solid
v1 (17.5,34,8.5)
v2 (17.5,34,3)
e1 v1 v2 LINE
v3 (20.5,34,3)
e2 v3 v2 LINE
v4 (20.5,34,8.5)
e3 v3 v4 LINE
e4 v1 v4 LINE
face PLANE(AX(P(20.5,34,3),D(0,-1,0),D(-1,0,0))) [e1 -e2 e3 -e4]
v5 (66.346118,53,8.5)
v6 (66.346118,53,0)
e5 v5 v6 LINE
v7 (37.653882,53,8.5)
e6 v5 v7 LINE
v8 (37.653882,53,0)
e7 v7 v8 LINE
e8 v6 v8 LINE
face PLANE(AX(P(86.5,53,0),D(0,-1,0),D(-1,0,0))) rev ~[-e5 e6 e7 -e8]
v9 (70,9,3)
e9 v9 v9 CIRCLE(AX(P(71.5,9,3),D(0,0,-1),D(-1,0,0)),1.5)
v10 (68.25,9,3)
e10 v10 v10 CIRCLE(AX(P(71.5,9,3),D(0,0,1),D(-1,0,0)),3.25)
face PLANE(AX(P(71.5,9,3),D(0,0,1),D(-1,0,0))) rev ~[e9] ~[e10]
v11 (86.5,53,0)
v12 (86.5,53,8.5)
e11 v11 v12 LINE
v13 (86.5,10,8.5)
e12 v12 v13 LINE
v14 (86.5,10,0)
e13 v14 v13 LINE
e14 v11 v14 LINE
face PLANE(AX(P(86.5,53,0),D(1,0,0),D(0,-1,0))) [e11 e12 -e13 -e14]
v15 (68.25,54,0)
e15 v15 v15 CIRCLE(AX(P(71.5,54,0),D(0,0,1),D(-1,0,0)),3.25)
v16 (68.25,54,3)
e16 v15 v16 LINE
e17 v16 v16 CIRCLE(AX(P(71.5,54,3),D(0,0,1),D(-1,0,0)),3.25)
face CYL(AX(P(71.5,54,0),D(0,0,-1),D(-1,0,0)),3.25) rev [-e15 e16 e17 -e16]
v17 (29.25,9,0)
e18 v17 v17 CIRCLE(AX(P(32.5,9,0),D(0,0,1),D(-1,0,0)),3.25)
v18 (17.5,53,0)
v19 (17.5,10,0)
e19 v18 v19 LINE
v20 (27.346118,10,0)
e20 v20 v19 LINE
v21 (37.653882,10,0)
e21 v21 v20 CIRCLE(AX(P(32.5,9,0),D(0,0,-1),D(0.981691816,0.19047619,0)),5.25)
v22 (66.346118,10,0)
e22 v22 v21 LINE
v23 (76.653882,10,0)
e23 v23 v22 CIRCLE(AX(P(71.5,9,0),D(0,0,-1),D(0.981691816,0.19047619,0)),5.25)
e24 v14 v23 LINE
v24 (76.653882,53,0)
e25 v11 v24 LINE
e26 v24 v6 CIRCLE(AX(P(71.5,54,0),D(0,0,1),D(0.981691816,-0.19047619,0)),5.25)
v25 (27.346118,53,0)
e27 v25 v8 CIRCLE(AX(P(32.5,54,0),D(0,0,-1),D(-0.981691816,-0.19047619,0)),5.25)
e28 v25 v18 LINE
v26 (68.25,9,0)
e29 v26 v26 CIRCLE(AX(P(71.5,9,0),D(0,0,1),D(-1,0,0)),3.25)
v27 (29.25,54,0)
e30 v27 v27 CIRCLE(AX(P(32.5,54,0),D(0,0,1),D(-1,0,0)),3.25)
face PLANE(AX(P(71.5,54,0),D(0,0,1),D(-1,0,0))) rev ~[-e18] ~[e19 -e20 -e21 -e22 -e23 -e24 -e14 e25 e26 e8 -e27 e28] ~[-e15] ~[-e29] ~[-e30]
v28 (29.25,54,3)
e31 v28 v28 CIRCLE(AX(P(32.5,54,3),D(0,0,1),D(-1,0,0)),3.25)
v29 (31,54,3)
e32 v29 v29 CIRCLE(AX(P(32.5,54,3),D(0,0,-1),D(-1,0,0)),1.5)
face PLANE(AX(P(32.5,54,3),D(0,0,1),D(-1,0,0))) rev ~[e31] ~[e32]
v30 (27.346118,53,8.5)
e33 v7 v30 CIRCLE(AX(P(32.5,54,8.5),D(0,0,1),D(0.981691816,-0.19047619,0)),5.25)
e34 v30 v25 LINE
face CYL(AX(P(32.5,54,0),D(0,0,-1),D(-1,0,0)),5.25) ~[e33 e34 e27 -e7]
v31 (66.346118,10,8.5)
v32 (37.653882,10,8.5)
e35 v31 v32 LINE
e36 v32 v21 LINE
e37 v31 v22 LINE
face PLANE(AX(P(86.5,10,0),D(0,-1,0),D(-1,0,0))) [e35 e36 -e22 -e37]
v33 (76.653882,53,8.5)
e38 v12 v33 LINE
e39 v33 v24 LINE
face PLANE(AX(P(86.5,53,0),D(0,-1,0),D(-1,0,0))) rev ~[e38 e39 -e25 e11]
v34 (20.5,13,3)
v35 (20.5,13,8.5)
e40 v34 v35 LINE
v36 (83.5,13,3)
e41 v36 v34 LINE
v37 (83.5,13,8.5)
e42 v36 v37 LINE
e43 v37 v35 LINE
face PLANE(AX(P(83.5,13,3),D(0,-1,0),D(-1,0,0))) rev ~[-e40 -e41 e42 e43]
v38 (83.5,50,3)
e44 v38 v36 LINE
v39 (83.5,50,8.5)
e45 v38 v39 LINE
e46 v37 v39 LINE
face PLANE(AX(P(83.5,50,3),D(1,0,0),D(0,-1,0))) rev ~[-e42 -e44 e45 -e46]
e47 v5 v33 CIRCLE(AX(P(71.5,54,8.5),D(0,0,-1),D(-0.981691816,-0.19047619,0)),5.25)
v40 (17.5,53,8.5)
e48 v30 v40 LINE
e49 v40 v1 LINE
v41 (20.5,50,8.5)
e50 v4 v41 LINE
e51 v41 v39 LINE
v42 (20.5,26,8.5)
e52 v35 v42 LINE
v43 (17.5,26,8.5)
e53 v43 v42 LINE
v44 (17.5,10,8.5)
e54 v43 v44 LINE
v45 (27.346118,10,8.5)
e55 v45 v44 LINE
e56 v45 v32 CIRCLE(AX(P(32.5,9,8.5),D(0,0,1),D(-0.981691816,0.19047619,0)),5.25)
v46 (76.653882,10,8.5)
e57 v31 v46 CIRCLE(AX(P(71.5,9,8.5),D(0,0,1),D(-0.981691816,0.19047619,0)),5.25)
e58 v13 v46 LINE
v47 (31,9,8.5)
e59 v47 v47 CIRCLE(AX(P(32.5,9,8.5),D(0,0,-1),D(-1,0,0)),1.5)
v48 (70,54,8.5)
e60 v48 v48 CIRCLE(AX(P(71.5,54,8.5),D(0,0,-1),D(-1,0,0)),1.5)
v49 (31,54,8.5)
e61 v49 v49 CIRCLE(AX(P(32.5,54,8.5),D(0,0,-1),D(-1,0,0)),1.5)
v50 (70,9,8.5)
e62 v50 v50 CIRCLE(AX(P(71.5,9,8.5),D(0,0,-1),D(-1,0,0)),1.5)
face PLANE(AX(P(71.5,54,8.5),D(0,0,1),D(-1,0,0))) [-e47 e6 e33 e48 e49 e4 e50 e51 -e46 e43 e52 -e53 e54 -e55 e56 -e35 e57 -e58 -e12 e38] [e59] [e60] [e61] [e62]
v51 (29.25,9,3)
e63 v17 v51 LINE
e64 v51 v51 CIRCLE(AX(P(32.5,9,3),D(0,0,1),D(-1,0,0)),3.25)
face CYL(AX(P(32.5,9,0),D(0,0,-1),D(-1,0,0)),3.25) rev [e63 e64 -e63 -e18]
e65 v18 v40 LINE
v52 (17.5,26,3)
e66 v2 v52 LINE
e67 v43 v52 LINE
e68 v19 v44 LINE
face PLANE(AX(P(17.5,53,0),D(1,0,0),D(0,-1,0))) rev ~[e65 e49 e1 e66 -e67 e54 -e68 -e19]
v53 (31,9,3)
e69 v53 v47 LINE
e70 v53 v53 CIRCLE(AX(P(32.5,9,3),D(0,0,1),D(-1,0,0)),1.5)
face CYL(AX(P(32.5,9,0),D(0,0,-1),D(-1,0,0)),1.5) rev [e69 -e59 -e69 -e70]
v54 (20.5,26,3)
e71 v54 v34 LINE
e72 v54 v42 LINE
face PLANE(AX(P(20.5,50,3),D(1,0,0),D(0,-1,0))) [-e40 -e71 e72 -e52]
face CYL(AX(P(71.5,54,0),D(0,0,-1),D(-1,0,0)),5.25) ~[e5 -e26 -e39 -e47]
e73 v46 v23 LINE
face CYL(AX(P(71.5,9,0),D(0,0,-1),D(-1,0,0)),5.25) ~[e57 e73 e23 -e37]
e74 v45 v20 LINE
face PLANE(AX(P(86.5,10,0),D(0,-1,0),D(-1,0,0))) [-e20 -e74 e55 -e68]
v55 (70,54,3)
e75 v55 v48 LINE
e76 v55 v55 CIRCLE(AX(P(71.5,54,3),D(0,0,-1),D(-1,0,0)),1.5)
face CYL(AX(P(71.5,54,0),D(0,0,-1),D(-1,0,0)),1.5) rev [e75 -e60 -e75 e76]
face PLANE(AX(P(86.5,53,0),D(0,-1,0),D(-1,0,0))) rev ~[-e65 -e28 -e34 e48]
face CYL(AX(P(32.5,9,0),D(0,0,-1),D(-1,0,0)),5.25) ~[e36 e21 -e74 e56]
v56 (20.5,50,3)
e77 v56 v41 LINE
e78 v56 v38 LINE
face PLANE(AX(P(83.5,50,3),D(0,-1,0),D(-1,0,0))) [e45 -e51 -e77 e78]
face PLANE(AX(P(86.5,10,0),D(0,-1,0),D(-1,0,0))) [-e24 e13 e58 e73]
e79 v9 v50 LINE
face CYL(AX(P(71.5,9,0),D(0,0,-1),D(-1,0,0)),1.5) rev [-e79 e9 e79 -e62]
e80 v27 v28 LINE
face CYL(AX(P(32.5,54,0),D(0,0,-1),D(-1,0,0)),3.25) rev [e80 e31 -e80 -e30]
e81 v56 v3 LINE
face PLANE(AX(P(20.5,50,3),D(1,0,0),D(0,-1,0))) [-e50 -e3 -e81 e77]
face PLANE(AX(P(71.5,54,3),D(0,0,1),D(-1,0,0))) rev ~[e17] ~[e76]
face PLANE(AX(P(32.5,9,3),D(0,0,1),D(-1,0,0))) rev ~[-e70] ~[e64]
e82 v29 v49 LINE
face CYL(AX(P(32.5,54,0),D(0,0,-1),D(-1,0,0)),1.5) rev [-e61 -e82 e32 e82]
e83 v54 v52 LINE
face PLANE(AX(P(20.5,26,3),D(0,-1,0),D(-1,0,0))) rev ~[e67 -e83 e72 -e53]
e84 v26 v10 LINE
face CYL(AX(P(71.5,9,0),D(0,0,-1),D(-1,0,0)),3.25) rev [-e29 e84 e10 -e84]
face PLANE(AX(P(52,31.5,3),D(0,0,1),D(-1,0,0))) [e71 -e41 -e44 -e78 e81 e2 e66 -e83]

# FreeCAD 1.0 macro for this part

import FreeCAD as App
import Part
import Sketcher

V = App.Vector
Q = App.Units.Quantity

doc = App.newDocument("Part")
body = doc.addObject("PartDesign::Body", "Body")

sketch1 = doc.addObject("Sketcher::SketchObject", "Sketch")
body.addObject(sketch1)
sketch1.AttachmentSupport = (doc.XY_Plane, [""])
sketch1.MapMode = "FlatFace"
sketch1.addGeometry(Part.LineSegment(V(0, 37, 0), V(0, 0, 0)), False)
sketch1.addGeometry(Part.LineSegment(V(0, 0, 0), V(63, 0, 0)), False)
sketch1.addGeometry(Part.LineSegment(V(63, 0, 0), V(63, 37, 0)), False)
sketch1.addGeometry(Part.LineSegment(V(63, 37, 0), V(0, 37, 0)), False)
sketch1.addConstraint(Sketcher.Constraint("Coincident", 0, 2, 1, 1))
sketch1.addConstraint(Sketcher.Constraint("Coincident", 1, 2, 2, 1))
sketch1.addConstraint(Sketcher.Constraint("Coincident", 2, 2, 3, 1))
sketch1.addConstraint(Sketcher.Constraint("Coincident", 3, 2, 0, 1))
sketch1.addConstraint(Sketcher.Constraint("Vertical", 0))
sketch1.addConstraint(Sketcher.Constraint("Horizontal", 1))
sketch1.addConstraint(Sketcher.Constraint("Vertical", 2))
sketch1.addConstraint(Sketcher.Constraint("Horizontal", 3))
sketch1.addConstraint(Sketcher.Constraint("Coincident", 0, 2, -1, 1))
sketch1.addConstraint(Sketcher.Constraint("DistanceX", 1, 1, 1, 2, Q("63 mm")))
sketch1.addConstraint(Sketcher.Constraint("DistanceY", 0, 2, 0, 1, Q("37 mm")))
pad1 = doc.addObject("PartDesign::Pad", "Pad")
body.addObject(pad1)
pad1.Profile = sketch1
pad1.Length = 5.5
body2 = doc.addObject("PartDesign::Body", "Body001")

sketch2 = doc.addObject("Sketcher::SketchObject", "Sketch001")
body2.addObject(sketch2)
sketch2.AttachmentSupport = (doc.getObject("XY_Plane001"), [""])
sketch2.MapMode = "FlatFace"
sketch2.addGeometry(Part.LineSegment(V(63, 24, 0), V(63, 16, 0)), False)
sketch2.addGeometry(Part.LineSegment(V(63, 16, 0), V(73, 16, 0)), False)
sketch2.addGeometry(Part.LineSegment(V(73, 16, 0), V(73, 24, 0)), False)
sketch2.addGeometry(Part.LineSegment(V(73, 24, 0), V(63, 24, 0)), False)
sketch2.addConstraint(Sketcher.Constraint("Coincident", 0, 2, 1, 1))
sketch2.addConstraint(Sketcher.Constraint("Coincident", 1, 2, 2, 1))
sketch2.addConstraint(Sketcher.Constraint("Coincident", 2, 2, 3, 1))
sketch2.addConstraint(Sketcher.Constraint("Coincident", 3, 2, 0, 1))
sketch2.addConstraint(Sketcher.Constraint("Vertical", 0))
sketch2.addConstraint(Sketcher.Constraint("Horizontal", 1))
sketch2.addConstraint(Sketcher.Constraint("Vertical", 2))
sketch2.addConstraint(Sketcher.Constraint("Horizontal", 3))
sketch2.addConstraint(Sketcher.Constraint("DistanceX", 1, 1, 1, 2, Q("10 mm")))
sketch2.addConstraint(Sketcher.Constraint("DistanceY", 0, 2, 0, 1, Q("8 mm")))
sketch2.addConstraint(Sketcher.Constraint("DistanceX", -1, 1, 0, 2, Q("63 mm")))
sketch2.addConstraint(Sketcher.Constraint("DistanceY", -1, 1, 0, 2, Q("16 mm")))
pad2 = doc.addObject("PartDesign::Pad", "Pad001")
body2.addObject(pad2)
pad2.Profile = sketch2
pad2.Length = 5.5
doc.recompute()

boolean = doc.addObject("PartDesign::Boolean", "Boolean")
body2.addObject(boolean)
boolean.Type = "Fuse"
boolean.addObjects([body])
body3 = doc.addObject("PartDesign::Body", "Body002")
doc.recompute()

body2.Placement = App.Placement(V(3, 3, 3), App.Rotation(V(0, 0, 1), 0))
boolean2 = doc.addObject("PartDesign::Boolean", "Boolean001")
body3.addObject(boolean2)
boolean2.Type = "Fuse"
boolean2.addObjects([body2])
body4 = doc.addObject("PartDesign::Body", "Body003")

sketch3 = doc.addObject("Sketcher::SketchObject", "Sketch002")
body4.addObject(sketch3)
sketch3.AttachmentSupport = (doc.getObject("XY_Plane003"), [""])
sketch3.MapMode = "FlatFace"
sketch3.addGeometry(Part.Circle(V(15, -1, 0), V(0, 0, 1), 3.2), False)
sketch3.addConstraint(Sketcher.Constraint("Diameter", 0, Q("6.5 mm")))
sketch3.addConstraint(Sketcher.Constraint("DistanceX", -1, 1, 0, 3, Q("15 mm")))
sketch3.addConstraint(Sketcher.Constraint("DistanceY", 0, 3, -1, 1, Q("1 mm")))
pad3 = doc.addObject("PartDesign::Pad", "Pad002")
body4.addObject(pad3)
pad3.Profile = sketch3
pad3.Length = 3
body5 = doc.addObject("PartDesign::Body", "Body004")

sketch4 = doc.addObject("Sketcher::SketchObject", "Sketch003")
body5.addObject(sketch4)
sketch4.AttachmentSupport = (doc.getObject("XY_Plane004"), [""])
sketch4.MapMode = "FlatFace"
sketch4.addGeometry(Part.Circle(V(15, -1, 0), V(0, 0, 1), 1.5), False)
sketch4.addConstraint(Sketcher.Constraint("Diameter", 0, Q("3 mm")))
sketch4.addConstraint(Sketcher.Constraint("DistanceX", -1, 1, 0, 3, Q("15 mm")))
sketch4.addConstraint(Sketcher.Constraint("DistanceY", 0, 3, -1, 1, Q("1 mm")))
pad4 = doc.addObject("PartDesign::Pad", "Pad003")
body5.addObject(pad4)
pad4.Profile = sketch4
pad4.Length = 8.5
doc.recompute()

boolean3 = doc.addObject("PartDesign::Boolean", "Boolean002")
body5.addObject(boolean3)
boolean3.Type = "Fuse"
boolean3.addObjects([body4])
body6 = doc.addObject("PartDesign::Body", "Body005")

sketch5 = doc.addObject("Sketcher::SketchObject", "Sketch004")
body6.addObject(sketch5)
sketch5.AttachmentSupport = (doc.getObject("XY_Plane005"), [""])
sketch5.MapMode = "FlatFace"
sketch5.addGeometry(Part.Circle(V(15, -1, 0), V(0, 0, 1), 5), False)
sketch5.addConstraint(Sketcher.Constraint("Diameter", 0, Q("10.5 mm")))
sketch5.addConstraint(Sketcher.Constraint("DistanceX", -1, 1, 0, 3, Q("15 mm")))
sketch5.addConstraint(Sketcher.Constraint("DistanceY", 0, 3, -1, 1, Q("1 mm")))
pad5 = doc.addObject("PartDesign::Pad", "Pad004")
body6.addObject(pad5)
pad5.Profile = sketch5
pad5.Length = 8.5
doc.recompute()

boolean4 = doc.addObject("PartDesign::Boolean", "Boolean003")
body6.addObject(boolean4)
boolean4.Type = "Cut"
boolean4.addObjects([body5])
body7 = doc.addObject("PartDesign::Body", "Body006")
doc.recompute()

body6.Placement = App.Placement(V(39, 45, 0), App.Rotation(V(0, 0, 1), 0))
boolean5 = doc.addObject("PartDesign::Boolean", "Boolean004")
body7.addObject(boolean5)
boolean5.Type = "Fuse"
boolean5.addObjects([body6])
body8 = doc.addObject("PartDesign::Body", "Body007")

sketch6 = doc.addObject("Sketcher::SketchObject", "Sketch005")
body8.addObject(sketch6)
sketch6.AttachmentSupport = (doc.getObject("XY_Plane007"), [""])
sketch6.MapMode = "FlatFace"
sketch6.addGeometry(Part.Circle(V(15, -1, 0), V(0, 0, 1), 3.2), False)
sketch6.addConstraint(Sketcher.Constraint("Diameter", 0, Q("6.5 mm")))
sketch6.addConstraint(Sketcher.Constraint("DistanceX", -1, 1, 0, 3, Q("15 mm")))
sketch6.addConstraint(Sketcher.Constraint("DistanceY", 0, 3, -1, 1, Q("1 mm")))
pad6 = doc.addObject("PartDesign::Pad", "Pad005")
body8.addObject(pad6)
pad6.Profile = sketch6
pad6.Length = 3
body9 = doc.addObject("PartDesign::Body", "Body008")

sketch7 = doc.addObject("Sketcher::SketchObject", "Sketch006")
body9.addObject(sketch7)
sketch7.AttachmentSupport = (doc.getObject("XY_Plane008"), [""])
sketch7.MapMode = "FlatFace"
sketch7.addGeometry(Part.Circle(V(15, -1, 0), V(0, 0, 1), 1.5), False)
sketch7.addConstraint(Sketcher.Constraint("Diameter", 0, Q("3 mm")))
sketch7.addConstraint(Sketcher.Constraint("DistanceX", -1, 1, 0, 3, Q("15 mm")))
sketch7.addConstraint(Sketcher.Constraint("DistanceY", 0, 3, -1, 1, Q("1 mm")))
pad7 = doc.addObject("PartDesign::Pad", "Pad006")
body9.addObject(pad7)
pad7.Profile = sketch7
pad7.Length = 8.5
doc.recompute()

boolean6 = doc.addObject("PartDesign::Boolean", "Boolean005")
body9.addObject(boolean6)
boolean6.Type = "Fuse"
boolean6.addObjects([body8])
body10 = doc.addObject("PartDesign::Body", "Body009")

sketch8 = doc.addObject("Sketcher::SketchObject", "Sketch007")
body10.addObject(sketch8)
sketch8.AttachmentSupport = (doc.getObject("XY_Plane009"), [""])
sketch8.MapMode = "FlatFace"
sketch8.addGeometry(Part.Circle(V(15, -1, 0), V(0, 0, 1), 5), False)
sketch8.addConstraint(Sketcher.Constraint("Diameter", 0, Q("10.5 mm")))
sketch8.addConstraint(Sketcher.Constraint("DistanceX", -1, 1, 0, 3, Q("15 mm")))
sketch8.addConstraint(Sketcher.Constraint("DistanceY", 0, 3, -1, 1, Q("1 mm")))
pad8 = doc.addObject("PartDesign::Pad", "Pad007")
body10.addObject(pad8)
pad8.Profile = sketch8
pad8.Length = 8.5
doc.recompute()

boolean7 = doc.addObject("PartDesign::Boolean", "Boolean006")
body10.addObject(boolean7)
boolean7.Type = "Cut"
boolean7.addObjects([body9])
body11 = doc.addObject("PartDesign::Body", "Body010")
doc.recompute()

body10.Placement = App.Placement(V(39, 0, 0), App.Rotation(V(0, 0, 1), 0))
boolean8 = doc.addObject("PartDesign::Boolean", "Boolean007")
body11.addObject(boolean8)
boolean8.Type = "Fuse"
boolean8.addObjects([body10])
body12 = doc.addObject("PartDesign::Body", "Body011")

sketch9 = doc.addObject("Sketcher::SketchObject", "Sketch008")
body12.addObject(sketch9)
sketch9.AttachmentSupport = (doc.getObject("XY_Plane011"), [""])
sketch9.MapMode = "FlatFace"
sketch9.addGeometry(Part.Circle(V(15, -1, 0), V(0, 0, 1), 3.2), False)
sketch9.addConstraint(Sketcher.Constraint("Diameter", 0, Q("6.5 mm")))
sketch9.addConstraint(Sketcher.Constraint("DistanceX", -1, 1, 0, 3, Q("15 mm")))
sketch9.addConstraint(Sketcher.Constraint("DistanceY", 0, 3, -1, 1, Q("1 mm")))
pad9 = doc.addObject("PartDesign::Pad", "Pad008")
body12.addObject(pad9)
pad9.Profile = sketch9
pad9.Length = 3
body13 = doc.addObject("PartDesign::Body", "Body012")

sketch10 = doc.addObject("Sketcher::SketchObject", "Sketch009")
body13.addObject(sketch10)
sketch10.AttachmentSupport = (doc.getObject("XY_Plane012"), [""])
sketch10.MapMode = "FlatFace"
sketch10.addGeometry(Part.Circle(V(15, -1, 0), V(0, 0, 1), 1.5), False)
sketch10.addConstraint(Sketcher.Constraint("Diameter", 0, Q("3 mm")))
sketch10.addConstraint(Sketcher.Constraint("DistanceX", -1, 1, 0, 3, Q("15 mm")))
sketch10.addConstraint(Sketcher.Constraint("DistanceY", 0, 3, -1, 1, Q("1 mm")))
pad10 = doc.addObject("PartDesign::Pad", "Pad009")
body13.addObject(pad10)
pad10.Profile = sketch10
pad10.Length = 8.5
doc.recompute()

boolean9 = doc.addObject("PartDesign::Boolean", "Boolean008")
body13.addObject(boolean9)
boolean9.Type = "Fuse"
boolean9.addObjects([body12])
body14 = doc.addObject("PartDesign::Body", "Body013")

sketch11 = doc.addObject("Sketcher::SketchObject", "Sketch010")
body14.addObject(sketch11)
sketch11.AttachmentSupport = (doc.getObject("XY_Plane013"), [""])
sketch11.MapMode = "FlatFace"
sketch11.addGeometry(Part.Circle(V(15, -1, 0), V(0, 0, 1), 5), False)
sketch11.addConstraint(Sketcher.Constraint("Diameter", 0, Q("10.5 mm")))
sketch11.addConstraint(Sketcher.Constraint("DistanceX", -1, 1, 0, 3, Q("15 mm")))
sketch11.addConstraint(Sketcher.Constraint("DistanceY", 0, 3, -1, 1, Q("1 mm")))
pad11 = doc.addObject("PartDesign::Pad", "Pad010")
body14.addObject(pad11)
pad11.Profile = sketch11
pad11.Length = 8.5
doc.recompute()

boolean10 = doc.addObject("PartDesign::Boolean", "Boolean009")
body14.addObject(boolean10)
boolean10.Type = "Cut"
boolean10.addObjects([body13])
body15 = doc.addObject("PartDesign::Body", "Body014")

sketch12 = doc.addObject("Sketcher::SketchObject", "Sketch011")
body15.addObject(sketch12)
sketch12.AttachmentSupport = (doc.getObject("XY_Plane014"), [""])
sketch12.MapMode = "FlatFace"
sketch12.addGeometry(Part.Circle(V(15, -1, 0), V(0, 0, 1), 3.2), False)
sketch12.addConstraint(Sketcher.Constraint("Diameter", 0, Q("6.5 mm")))
sketch12.addConstraint(Sketcher.Constraint("DistanceX", -1, 1, 0, 3, Q("15 mm")))
sketch12.addConstraint(Sketcher.Constraint("DistanceY", 0, 3, -1, 1, Q("1 mm")))
pad12 = doc.addObject("PartDesign::Pad", "Pad011")
body15.addObject(pad12)
pad12.Profile = sketch12
pad12.Length = 3
body16 = doc.addObject("PartDesign::Body", "Body015")

sketch13 = doc.addObject("Sketcher::SketchObject", "Sketch012")
body16.addObject(sketch13)
sketch13.AttachmentSupport = (doc.getObject("XY_Plane015"), [""])
sketch13.MapMode = "FlatFace"
sketch13.addGeometry(Part.Circle(V(15, -1, 0), V(0, 0, 1), 1.5), False)
sketch13.addConstraint(Sketcher.Constraint("Diameter", 0, Q("3 mm")))
sketch13.addConstraint(Sketcher.Constraint("DistanceX", -1, 1, 0, 3, Q("15 mm")))
sketch13.addConstraint(Sketcher.Constraint("DistanceY", 0, 3, -1, 1, Q("1 mm")))
pad13 = doc.addObject("PartDesign::Pad", "Pad012")
body16.addObject(pad13)
pad13.Profile = sketch13
pad13.Length = 8.5
doc.recompute()

boolean11 = doc.addObject("PartDesign::Boolean", "Boolean010")
body16.addObject(boolean11)
boolean11.Type = "Fuse"
boolean11.addObjects([body15])
body17 = doc.addObject("PartDesign::Body", "Body016")

sketch14 = doc.addObject("Sketcher::SketchObject", "Sketch013")
body17.addObject(sketch14)
sketch14.AttachmentSupport = (doc.getObject("XY_Plane016"), [""])
sketch14.MapMode = "FlatFace"
sketch14.addGeometry(Part.Circle(V(15, -1, 0), V(0, 0, 1), 5), False)
sketch14.addConstraint(Sketcher.Constraint("Diameter", 0, Q("10.5 mm")))
sketch14.addConstraint(Sketcher.Constraint("DistanceX", -1, 1, 0, 3, Q("15 mm")))
sketch14.addConstraint(Sketcher.Constraint("DistanceY", 0, 3, -1, 1, Q("1 mm")))
pad14 = doc.addObject("PartDesign::Pad", "Pad013")
body17.addObject(pad14)
pad14.Profile = sketch14
pad14.Length = 8.5
doc.recompute()

boolean12 = doc.addObject("PartDesign::Boolean", "Boolean011")
body17.addObject(boolean12)
boolean12.Type = "Cut"
boolean12.addObjects([body16])
body18 = doc.addObject("PartDesign::Body", "Body017")
body18.AllowCompound = True
doc.recompute()

body17.Placement = App.Placement(V(0, 45, 0), App.Rotation(V(0, 0, 1), 0))
boolean13 = doc.addObject("PartDesign::Boolean", "Boolean012")
body18.addObject(boolean13)
boolean13.Type = "Fuse"
boolean13.addObjects([body17])
doc.recompute()

boolean14 = doc.addObject("PartDesign::Boolean", "Boolean013")
body18.addObject(boolean14)
boolean14.Type = "Fuse"
boolean14.addObjects([body7])
doc.recompute()

boolean15 = doc.addObject("PartDesign::Boolean", "Boolean014")
body18.addObject(boolean15)
boolean15.Type = "Fuse"
boolean15.addObjects([body11])
doc.recompute()

boolean16 = doc.addObject("PartDesign::Boolean", "Boolean015")
body18.addObject(boolean16)
boolean16.Type = "Fuse"
boolean16.addObjects([body14])
doc.recompute()

boolean17 = doc.addObject("PartDesign::Boolean", "Boolean016")
body18.addObject(boolean17)
boolean17.Type = "Cut"
boolean17.addObjects([body3])
body19 = doc.addObject("PartDesign::Body", "Body018")

sketch15 = doc.addObject("Sketcher::SketchObject", "Sketch014")
body19.addObject(sketch15)
sketch15.AttachmentSupport = (doc.getObject("XY_Plane018"), [""])
sketch15.MapMode = "FlatFace"
sketch15.addGeometry(Part.Circle(V(15, -1, 0), V(0, 0, 1), 3.2), False)
sketch15.addConstraint(Sketcher.Constraint("Diameter", 0, Q("6.5 mm")))
sketch15.addConstraint(Sketcher.Constraint("DistanceX", -1, 1, 0, 3, Q("15 mm")))
sketch15.addConstraint(Sketcher.Constraint("DistanceY", 0, 3, -1, 1, Q("1 mm")))
pad15 = doc.addObject("PartDesign::Pad", "Pad014")
body19.addObject(pad15)
pad15.Profile = sketch15
pad15.Length = 3
body20 = doc.addObject("PartDesign::Body", "Body019")

sketch16 = doc.addObject("Sketcher::SketchObject", "Sketch015")
body20.addObject(sketch16)
sketch16.AttachmentSupport = (doc.getObject("XY_Plane019"), [""])
sketch16.MapMode = "FlatFace"
sketch16.addGeometry(Part.Circle(V(15, -1, 0), V(0, 0, 1), 1.5), False)
sketch16.addConstraint(Sketcher.Constraint("Diameter", 0, Q("3 mm")))
sketch16.addConstraint(Sketcher.Constraint("DistanceX", -1, 1, 0, 3, Q("15 mm")))
sketch16.addConstraint(Sketcher.Constraint("DistanceY", 0, 3, -1, 1, Q("1 mm")))
pad16 = doc.addObject("PartDesign::Pad", "Pad015")
body20.addObject(pad16)
pad16.Profile = sketch16
pad16.Length = 8.5
doc.recompute()

boolean18 = doc.addObject("PartDesign::Boolean", "Boolean017")
body20.addObject(boolean18)
boolean18.Type = "Fuse"
boolean18.addObjects([body19])
body21 = doc.addObject("PartDesign::Body", "Body020")

sketch17 = doc.addObject("Sketcher::SketchObject", "Sketch016")
body21.addObject(sketch17)
sketch17.AttachmentSupport = (doc.getObject("XY_Plane020"), [""])
sketch17.MapMode = "FlatFace"
sketch17.addGeometry(Part.Circle(V(15, -1, 0), V(0, 0, 1), 3.2), False)
sketch17.addConstraint(Sketcher.Constraint("Diameter", 0, Q("6.5 mm")))
sketch17.addConstraint(Sketcher.Constraint("DistanceX", -1, 1, 0, 3, Q("15 mm")))
sketch17.addConstraint(Sketcher.Constraint("DistanceY", 0, 3, -1, 1, Q("1 mm")))
pad17 = doc.addObject("PartDesign::Pad", "Pad016")
body21.addObject(pad17)
pad17.Profile = sketch17
pad17.Length = 3
body22 = doc.addObject("PartDesign::Body", "Body021")

sketch18 = doc.addObject("Sketcher::SketchObject", "Sketch017")
body22.addObject(sketch18)
sketch18.AttachmentSupport = (doc.getObject("XY_Plane021"), [""])
sketch18.MapMode = "FlatFace"
sketch18.addGeometry(Part.Circle(V(15, -1, 0), V(0, 0, 1), 1.5), False)
sketch18.addConstraint(Sketcher.Constraint("Diameter", 0, Q("3 mm")))
sketch18.addConstraint(Sketcher.Constraint("DistanceX", -1, 1, 0, 3, Q("15 mm")))
sketch18.addConstraint(Sketcher.Constraint("DistanceY", 0, 3, -1, 1, Q("1 mm")))
pad18 = doc.addObject("PartDesign::Pad", "Pad017")
body22.addObject(pad18)
pad18.Profile = sketch18
pad18.Length = 8.5
doc.recompute()

boolean19 = doc.addObject("PartDesign::Boolean", "Boolean018")
body22.addObject(boolean19)
boolean19.Type = "Fuse"
boolean19.addObjects([body21])
body23 = doc.addObject("PartDesign::Body", "Body022")
doc.recompute()

body22.Placement = App.Placement(V(39, 0, 0), App.Rotation(V(0, 0, 1), 0))
boolean20 = doc.addObject("PartDesign::Boolean", "Boolean019")
body23.addObject(boolean20)
boolean20.Type = "Fuse"
boolean20.addObjects([body22])
body24 = doc.addObject("PartDesign::Body", "Body023")

sketch19 = doc.addObject("Sketcher::SketchObject", "Sketch018")
body24.addObject(sketch19)
sketch19.AttachmentSupport = (doc.getObject("XY_Plane023"), [""])
sketch19.MapMode = "FlatFace"
sketch19.addGeometry(Part.Circle(V(15, -1, 0), V(0, 0, 1), 3.2), False)
sketch19.addConstraint(Sketcher.Constraint("Diameter", 0, Q("6.5 mm")))
sketch19.addConstraint(Sketcher.Constraint("DistanceX", -1, 1, 0, 3, Q("15 mm")))
sketch19.addConstraint(Sketcher.Constraint("DistanceY", 0, 3, -1, 1, Q("1 mm")))
pad19 = doc.addObject("PartDesign::Pad", "Pad018")
body24.addObject(pad19)
pad19.Profile = sketch19
pad19.Length = 3
body25 = doc.addObject("PartDesign::Body", "Body024")

sketch20 = doc.addObject("Sketcher::SketchObject", "Sketch019")
body25.addObject(sketch20)
sketch20.AttachmentSupport = (doc.getObject("XY_Plane024"), [""])
sketch20.MapMode = "FlatFace"
sketch20.addGeometry(Part.Circle(V(15, -1, 0), V(0, 0, 1), 1.5), False)
sketch20.addConstraint(Sketcher.Constraint("Diameter", 0, Q("3 mm")))
sketch20.addConstraint(Sketcher.Constraint("DistanceX", -1, 1, 0, 3, Q("15 mm")))
sketch20.addConstraint(Sketcher.Constraint("DistanceY", 0, 3, -1, 1, Q("1 mm")))
pad20 = doc.addObject("PartDesign::Pad", "Pad019")
body25.addObject(pad20)
pad20.Profile = sketch20
pad20.Length = 8.5
doc.recompute()

boolean21 = doc.addObject("PartDesign::Boolean", "Boolean020")
body25.addObject(boolean21)
boolean21.Type = "Fuse"
boolean21.addObjects([body24])
body26 = doc.addObject("PartDesign::Body", "Body025")
doc.recompute()

body25.Placement = App.Placement(V(39, 45, 0), App.Rotation(V(0, 0, 1), 0))
boolean22 = doc.addObject("PartDesign::Boolean", "Boolean021")
body26.addObject(boolean22)
boolean22.Type = "Fuse"
boolean22.addObjects([body25])
body27 = doc.addObject("PartDesign::Body", "Body026")

sketch21 = doc.addObject("Sketcher::SketchObject", "Sketch020")
body27.addObject(sketch21)
sketch21.AttachmentSupport = (doc.getObject("XY_Plane026"), [""])
sketch21.MapMode = "FlatFace"
sketch21.addGeometry(Part.Circle(V(15, -1, 0), V(0, 0, 1), 3.2), False)
sketch21.addConstraint(Sketcher.Constraint("Diameter", 0, Q("6.5 mm")))
sketch21.addConstraint(Sketcher.Constraint("DistanceX", -1, 1, 0, 3, Q("15 mm")))
sketch21.addConstraint(Sketcher.Constraint("DistanceY", 0, 3, -1, 1, Q("1 mm")))
pad21 = doc.addObject("PartDesign::Pad", "Pad020")
body27.addObject(pad21)
pad21.Profile = sketch21
pad21.Length = 3
body28 = doc.addObject("PartDesign::Body", "Body027")

sketch22 = doc.addObject("Sketcher::SketchObject", "Sketch021")
body28.addObject(sketch22)
sketch22.AttachmentSupport = (doc.getObject("XY_Plane027"), [""])
sketch22.MapMode = "FlatFace"
sketch22.addGeometry(Part.Circle(V(15, -1, 0), V(0, 0, 1), 1.5), False)
sketch22.addConstraint(Sketcher.Constraint("Diameter", 0, Q("3 mm")))
sketch22.addConstraint(Sketcher.Constraint("DistanceX", -1, 1, 0, 3, Q("15 mm")))
sketch22.addConstraint(Sketcher.Constraint("DistanceY", 0, 3, -1, 1, Q("1 mm")))
pad22 = doc.addObject("PartDesign::Pad", "Pad021")
body28.addObject(pad22)
pad22.Profile = sketch22
pad22.Length = 8.5
doc.recompute()

boolean23 = doc.addObject("PartDesign::Boolean", "Boolean022")
body28.addObject(boolean23)
boolean23.Type = "Fuse"
boolean23.addObjects([body27])
body29 = doc.addObject("PartDesign::Body", "Body028")
body29.AllowCompound = True
doc.recompute()

body28.Placement = App.Placement(V(0, 45, 0), App.Rotation(V(0, 0, 1), 0))
boolean24 = doc.addObject("PartDesign::Boolean", "Boolean023")
body29.addObject(boolean24)
boolean24.Type = "Fuse"
boolean24.addObjects([body28])
doc.recompute()

boolean25 = doc.addObject("PartDesign::Boolean", "Boolean024")
body29.addObject(boolean25)
boolean25.Type = "Fuse"
boolean25.addObjects([body20])
doc.recompute()

boolean26 = doc.addObject("PartDesign::Boolean", "Boolean025")
body29.addObject(boolean26)
boolean26.Type = "Fuse"
boolean26.addObjects([body23])
doc.recompute()

boolean27 = doc.addObject("PartDesign::Boolean", "Boolean026")
body29.addObject(boolean27)
boolean27.Type = "Fuse"
boolean27.addObjects([body26])
body30 = doc.addObject("PartDesign::Body", "Body029")

sketch23 = doc.addObject("Sketcher::SketchObject", "Sketch022")
body30.addObject(sketch23)
sketch23.AttachmentSupport = (doc.getObject("XY_Plane029"), [""])
sketch23.MapMode = "FlatFace"
sketch23.addGeometry(Part.LineSegment(V(0, 37, 0), V(0, 0, 0)), False)
sketch23.addGeometry(Part.LineSegment(V(0, 0, 0), V(63, 0, 0)), False)
sketch23.addGeometry(Part.LineSegment(V(63, 0, 0), V(63, 37, 0)), False)
sketch23.addGeometry(Part.LineSegment(V(63, 37, 0), V(0, 37, 0)), False)
sketch23.addConstraint(Sketcher.Constraint("Coincident", 0, 2, 1, 1))
sketch23.addConstraint(Sketcher.Constraint("Coincident", 1, 2, 2, 1))
sketch23.addConstraint(Sketcher.Constraint("Coincident", 2, 2, 3, 1))
sketch23.addConstraint(Sketcher.Constraint("Coincident", 3, 2, 0, 1))
sketch23.addConstraint(Sketcher.Constraint("Vertical", 0))
sketch23.addConstraint(Sketcher.Constraint("Horizontal", 1))
sketch23.addConstraint(Sketcher.Constraint("Vertical", 2))
sketch23.addConstraint(Sketcher.Constraint("Horizontal", 3))
sketch23.addConstraint(Sketcher.Constraint("Coincident", 0, 2, -1, 1))
sketch23.addConstraint(Sketcher.Constraint("DistanceX", 1, 1, 1, 2, Q("63 mm")))
sketch23.addConstraint(Sketcher.Constraint("DistanceY", 0, 2, 0, 1, Q("37 mm")))
pad23 = doc.addObject("PartDesign::Pad", "Pad022")
body30.addObject(pad23)
pad23.Profile = sketch23
pad23.Length = 6
body31 = doc.addObject("PartDesign::Body", "Body030")

sketch24 = doc.addObject("Sketcher::SketchObject", "Sketch023")
body31.addObject(sketch24)
sketch24.AttachmentSupport = (doc.getObject("XY_Plane030"), [""])
sketch24.MapMode = "FlatFace"
sketch24.addGeometry(Part.LineSegment(V(63, 24, 0), V(63, 16, 0)), False)
sketch24.addGeometry(Part.LineSegment(V(63, 16, 0), V(73, 16, 0)), False)
sketch24.addGeometry(Part.LineSegment(V(73, 16, 0), V(73, 24, 0)), False)
sketch24.addGeometry(Part.LineSegment(V(73, 24, 0), V(63, 24, 0)), False)
sketch24.addConstraint(Sketcher.Constraint("Coincident", 0, 2, 1, 1))
sketch24.addConstraint(Sketcher.Constraint("Coincident", 1, 2, 2, 1))
sketch24.addConstraint(Sketcher.Constraint("Coincident", 2, 2, 3, 1))
sketch24.addConstraint(Sketcher.Constraint("Coincident", 3, 2, 0, 1))
sketch24.addConstraint(Sketcher.Constraint("Vertical", 0))
sketch24.addConstraint(Sketcher.Constraint("Horizontal", 1))
sketch24.addConstraint(Sketcher.Constraint("Vertical", 2))
sketch24.addConstraint(Sketcher.Constraint("Horizontal", 3))
sketch24.addConstraint(Sketcher.Constraint("DistanceX", 1, 1, 1, 2, Q("10 mm")))
sketch24.addConstraint(Sketcher.Constraint("DistanceY", 0, 2, 0, 1, Q("8 mm")))
sketch24.addConstraint(Sketcher.Constraint("DistanceX", -1, 1, 0, 2, Q("63 mm")))
sketch24.addConstraint(Sketcher.Constraint("DistanceY", -1, 1, 0, 2, Q("16 mm")))
pad24 = doc.addObject("PartDesign::Pad", "Pad023")
body31.addObject(pad24)
pad24.Profile = sketch24
pad24.Length = 6
doc.recompute()

boolean28 = doc.addObject("PartDesign::Boolean", "Boolean027")
body31.addObject(boolean28)
boolean28.Type = "Fuse"
boolean28.addObjects([body30])
body32 = doc.addObject("PartDesign::Body", "Body031")
doc.recompute()

body31.Placement = App.Placement(V(3, 3, 3), App.Rotation(V(0, 0, 1), 0))
boolean29 = doc.addObject("PartDesign::Boolean", "Boolean028")
body32.addObject(boolean29)
boolean29.Type = "Fuse"
boolean29.addObjects([body31])
body33 = doc.addObject("PartDesign::Body", "Body032")

sketch25 = doc.addObject("Sketcher::SketchObject", "Sketch024")
body33.addObject(sketch25)
sketch25.AttachmentSupport = (doc.getObject("XY_Plane032"), [""])
sketch25.MapMode = "FlatFace"
sketch25.addGeometry(Part.LineSegment(V(0, 43, 0), V(0, 0, 0)), False)
sketch25.addGeometry(Part.LineSegment(V(0, 0, 0), V(69, 0, 0)), False)
sketch25.addGeometry(Part.LineSegment(V(69, 0, 0), V(69, 43, 0)), False)
sketch25.addGeometry(Part.LineSegment(V(69, 43, 0), V(0, 43, 0)), False)
sketch25.addConstraint(Sketcher.Constraint("Coincident", 0, 2, 1, 1))
sketch25.addConstraint(Sketcher.Constraint("Coincident", 1, 2, 2, 1))
sketch25.addConstraint(Sketcher.Constraint("Coincident", 2, 2, 3, 1))
sketch25.addConstraint(Sketcher.Constraint("Coincident", 3, 2, 0, 1))
sketch25.addConstraint(Sketcher.Constraint("Vertical", 0))
sketch25.addConstraint(Sketcher.Constraint("Horizontal", 1))
sketch25.addConstraint(Sketcher.Constraint("Vertical", 2))
sketch25.addConstraint(Sketcher.Constraint("Horizontal", 3))
sketch25.addConstraint(Sketcher.Constraint("Coincident", 0, 2, -1, 1))
sketch25.addConstraint(Sketcher.Constraint("DistanceX", 1, 1, 1, 2, Q("69 mm")))
sketch25.addConstraint(Sketcher.Constraint("DistanceY", 0, 2, 0, 1, Q("43 mm")))
pad25 = doc.addObject("PartDesign::Pad", "Pad024")
body33.addObject(pad25)
pad25.Profile = sketch25
pad25.Length = 8.5
doc.recompute()

boolean30 = doc.addObject("PartDesign::Boolean", "Boolean029")
body33.addObject(boolean30)
boolean30.Type = "Cut"
boolean30.addObjects([body32])
doc.recompute()

boolean31 = doc.addObject("PartDesign::Boolean", "Boolean030")
body33.addObject(boolean31)
boolean31.Type = "Cut"
boolean31.addObjects([body29])
doc.recompute()

boolean32 = doc.addObject("PartDesign::Boolean", "Boolean031")
body33.addObject(boolean32)
boolean32.Type = "Fuse"
boolean32.addObjects([body18])
body34 = doc.addObject("PartDesign::Body", "Body033")
doc.recompute()

body33.Placement = App.Placement(V(86.5, 53, 0), App.Rotation(V(0, 0, 1), 180))
boolean33 = doc.addObject("PartDesign::Boolean", "Boolean032")
body34.addObject(boolean33)
boolean33.Type = "Fuse"
boolean33.addObjects([body33])

doc.recompute()
